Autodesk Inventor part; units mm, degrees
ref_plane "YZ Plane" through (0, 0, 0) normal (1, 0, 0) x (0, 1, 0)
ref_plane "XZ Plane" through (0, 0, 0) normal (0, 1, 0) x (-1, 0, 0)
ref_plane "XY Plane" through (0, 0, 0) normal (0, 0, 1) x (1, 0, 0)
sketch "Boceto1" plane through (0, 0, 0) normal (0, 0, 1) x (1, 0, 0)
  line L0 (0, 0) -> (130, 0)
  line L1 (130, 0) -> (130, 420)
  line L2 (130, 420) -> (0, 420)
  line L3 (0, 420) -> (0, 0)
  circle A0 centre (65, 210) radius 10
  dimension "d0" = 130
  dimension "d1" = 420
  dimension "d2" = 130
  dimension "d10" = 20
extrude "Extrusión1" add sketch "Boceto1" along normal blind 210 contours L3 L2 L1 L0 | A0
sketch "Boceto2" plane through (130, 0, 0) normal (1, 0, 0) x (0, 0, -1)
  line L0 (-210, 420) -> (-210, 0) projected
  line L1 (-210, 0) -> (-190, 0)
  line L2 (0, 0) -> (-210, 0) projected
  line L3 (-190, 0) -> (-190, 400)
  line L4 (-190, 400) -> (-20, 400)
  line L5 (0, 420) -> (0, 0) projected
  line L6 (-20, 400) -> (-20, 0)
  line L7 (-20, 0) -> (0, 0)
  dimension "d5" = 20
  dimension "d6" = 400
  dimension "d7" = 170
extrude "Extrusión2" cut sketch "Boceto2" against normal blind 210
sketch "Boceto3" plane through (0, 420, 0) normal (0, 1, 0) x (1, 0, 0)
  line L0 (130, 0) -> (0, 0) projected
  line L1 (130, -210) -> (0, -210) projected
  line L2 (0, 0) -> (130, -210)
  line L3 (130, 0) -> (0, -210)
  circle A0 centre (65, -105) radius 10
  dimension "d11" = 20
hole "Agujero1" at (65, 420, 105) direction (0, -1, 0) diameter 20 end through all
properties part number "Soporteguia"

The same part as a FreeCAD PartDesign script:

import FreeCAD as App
import Part
import Sketcher
Q = App.Units.Quantity


def add_polygon(sketch, points):
    """Adds a closed chain of lines whose ends are joined by coincident constraints."""
    first, n = sketch.GeometryCount, len(points)
    for a, b in zip(points, points[1:] + points[:1]):
        sketch.addGeometry(Part.LineSegment(App.Vector(*a, 0), App.Vector(*b, 0)), False)
    for i in range(n):
        sketch.addConstraint(Sketcher.Constraint("Coincident", first + i, 2, first + (i + 1) % n, 1))

doc = App.newDocument("Part")
params = doc.addObject("Spreadsheet::Sheet", "Params")
for row, (alias, value) in enumerate([
    ("sketch1_width", "130 mm"),
    ("sketch1_height", "420 mm"),
    ("pad1_length", "210 mm"),
    ("sketch2_width", "400 mm"),
    ("sketch2_height", "170 mm"),
    ("pocket1_length", "210 mm"),
    ("sketch3_diameter", "20 mm"),
    ("hole_diameter", "20 mm"),
], start=1):
    params.set(f"A{row}", alias)
    params.set(f"B{row}", "=" + value)
    params.setAlias(f"B{row}", alias)

body = doc.addObject("PartDesign::Body", "Body")

sketch1 = doc.addObject("Sketcher::SketchObject", "Sketch")
body.addObject(sketch1)
sketch1.AttachmentSupport = (doc.XY_Plane, [""])
sketch1.MapMode = "FlatFace"
add_polygon(sketch1, [(0, 420), (0, 0), (130, 0), (130, 420)])
sketch1.addConstraint([
    Sketcher.Constraint("Vertical", 0),
    Sketcher.Constraint("Horizontal", 1),
    Sketcher.Constraint("Vertical", 2),
    Sketcher.Constraint("Horizontal", 3),
    Sketcher.Constraint("Coincident", 0, 2, -1, 1),
    Sketcher.Constraint("DistanceX", 1, 1, 1, 2, Q("130 mm")),
    Sketcher.Constraint("DistanceY", 0, 2, 0, 1, Q("420 mm")),
])
sketch1.setExpression("Constraints[9]", "Params.sketch1_width")
sketch1.setExpression("Constraints[10]", "Params.sketch1_height")
pad1 = doc.addObject("PartDesign::Pad", "Pad")
body.addObject(pad1)
pad1.Profile = sketch1
pad1.setExpression("Length", "Params.pad1_length")

sketch2 = doc.addObject("Sketcher::SketchObject", "Sketch001")
body.addObject(sketch2)
sketch2.AttachmentSupport = (doc.YZ_Plane, [""])
sketch2.MapMode = "FlatFace"
sketch2.AttachmentOffset = App.Placement(App.Vector(0, 0, 130), App.Rotation())
add_polygon(sketch2, [(0, 190), (0, 20), (400, 20), (400, 190)])
sketch2.addConstraint([
    Sketcher.Constraint("Vertical", 0),
    Sketcher.Constraint("Horizontal", 1),
    Sketcher.Constraint("Vertical", 2),
    Sketcher.Constraint("Horizontal", 3),
    Sketcher.Constraint("PointOnObject", 0, 2, -2),
    Sketcher.Constraint("DistanceX", 1, 1, 1, 2, Q("400 mm")),
    Sketcher.Constraint("DistanceY", 0, 2, 0, 1, Q("170 mm")),
    Sketcher.Constraint("DistanceY", -1, 1, 0, 2, Q("20 mm")),
])
sketch2.setExpression("Constraints[9]", "Params.sketch2_width")
sketch2.setExpression("Constraints[10]", "Params.sketch2_height")
pocket1 = doc.addObject("PartDesign::Pocket", "Pocket")
body.addObject(pocket1)
pocket1.Profile = sketch2
pocket1.setExpression("Length", "Params.pocket1_length")

sketch3 = doc.addObject("Sketcher::SketchObject", "Sketch002")
body.addObject(sketch3)
sketch3.AttachmentSupport = (doc.XZ_Plane, [""])
sketch3.MapMode = "FlatFace"
sketch3.AttachmentOffset = App.Placement(App.Vector(0, 0, -420), App.Rotation())
sketch3.addGeometry(Part.Circle(App.Vector(65, 105, 0), App.Vector(0, 0, 1), 10), False)
sketch3.addConstraint([
    Sketcher.Constraint("Diameter", 0, Q("20 mm")),
    Sketcher.Constraint("DistanceX", -1, 1, 0, 3, Q("65 mm")),
    Sketcher.Constraint("DistanceY", -1, 1, 0, 3, Q("105 mm")),
])
sketch3.setExpression("Constraints[0]", "Params.sketch3_diameter")
doc.recompute()
hole = doc.addObject("PartDesign::Hole", "Hole")
body.addObject(hole)
hole.Profile = sketch3
hole.ThreadType = "None"
hole.setExpression("Diameter", "Params.hole_diameter")
hole.DepthType = "ThroughAll"
hole.Reversed = True

doc.recompute()
